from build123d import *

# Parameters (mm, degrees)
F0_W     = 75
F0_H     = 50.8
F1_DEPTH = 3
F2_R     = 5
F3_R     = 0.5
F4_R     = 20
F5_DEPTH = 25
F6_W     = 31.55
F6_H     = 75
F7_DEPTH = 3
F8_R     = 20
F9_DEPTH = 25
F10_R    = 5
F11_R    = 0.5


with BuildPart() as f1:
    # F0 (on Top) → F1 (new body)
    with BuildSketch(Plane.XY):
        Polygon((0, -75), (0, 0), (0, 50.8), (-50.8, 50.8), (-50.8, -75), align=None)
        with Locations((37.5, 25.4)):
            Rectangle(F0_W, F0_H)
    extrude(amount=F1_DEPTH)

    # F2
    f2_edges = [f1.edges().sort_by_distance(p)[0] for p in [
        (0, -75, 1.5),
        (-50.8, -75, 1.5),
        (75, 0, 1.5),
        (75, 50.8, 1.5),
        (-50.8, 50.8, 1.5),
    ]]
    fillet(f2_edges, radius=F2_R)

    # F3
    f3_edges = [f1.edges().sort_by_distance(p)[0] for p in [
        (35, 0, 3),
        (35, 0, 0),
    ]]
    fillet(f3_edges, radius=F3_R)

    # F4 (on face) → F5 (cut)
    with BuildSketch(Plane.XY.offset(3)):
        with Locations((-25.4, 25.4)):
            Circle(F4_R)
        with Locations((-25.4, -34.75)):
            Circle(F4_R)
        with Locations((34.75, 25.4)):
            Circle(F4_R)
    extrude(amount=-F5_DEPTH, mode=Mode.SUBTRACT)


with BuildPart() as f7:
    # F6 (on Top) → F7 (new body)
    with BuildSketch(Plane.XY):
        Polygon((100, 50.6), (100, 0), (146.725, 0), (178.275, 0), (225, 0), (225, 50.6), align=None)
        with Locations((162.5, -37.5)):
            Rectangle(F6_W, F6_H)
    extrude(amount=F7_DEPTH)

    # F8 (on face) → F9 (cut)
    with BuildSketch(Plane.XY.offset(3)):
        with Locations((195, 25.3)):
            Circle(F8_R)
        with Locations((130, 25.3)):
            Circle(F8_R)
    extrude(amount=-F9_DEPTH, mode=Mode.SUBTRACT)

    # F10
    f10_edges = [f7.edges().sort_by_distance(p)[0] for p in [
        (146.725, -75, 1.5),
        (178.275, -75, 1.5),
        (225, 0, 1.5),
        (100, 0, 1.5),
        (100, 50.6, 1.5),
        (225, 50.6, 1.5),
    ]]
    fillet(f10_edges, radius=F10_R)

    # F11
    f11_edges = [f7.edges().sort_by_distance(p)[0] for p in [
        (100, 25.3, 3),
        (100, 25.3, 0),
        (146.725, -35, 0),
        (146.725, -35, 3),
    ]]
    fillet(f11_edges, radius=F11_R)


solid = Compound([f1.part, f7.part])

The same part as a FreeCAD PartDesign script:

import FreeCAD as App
import Part
import Sketcher

V = App.Vector
Q = App.Units.Quantity


def edges_at(feature, points):
    """Names of the edges that pass closest to the given points."""
    edges = feature.Shape.Edges
    near = lambda p: min(range(len(edges)), key=lambda i: edges[i].distToShape(Part.Vertex(*p))[0])
    return sorted({f"Edge{near(p) + 1}" for p in points})


def add_polygon(sketch, points):
    """Adds a closed chain of lines whose ends are joined by coincident constraints."""
    first, n = sketch.GeometryCount, len(points)
    for a, b in zip(points, points[1:] + points[:1]):
        sketch.addGeometry(Part.LineSegment(App.Vector(*a, 0), App.Vector(*b, 0)), False)
    for i in range(n):
        sketch.addConstraint(Sketcher.Constraint("Coincident", first + i, 2, first + (i + 1) % n, 1))

doc = App.newDocument("Part")
body = doc.addObject("PartDesign::Body", "Body")

# Sketch on XY plane
sketch1 = body.newObject("Sketcher::SketchObject", "Sketch")
sketch1.AttachmentSupport = (doc.getObject("XY_Plane"), [""])
sketch1.MapMode = "FlatFace"
add_polygon(sketch1, [(0, -75), (0, 0), (75, 0), (75, 51), (-51, 51), (-51, -75)])  # lines 0-5
sketch1.addConstraint([
    Sketcher.Constraint("Vertical", 0),
    Sketcher.Constraint("Horizontal", 1),
    Sketcher.Constraint("Vertical", 2),
    Sketcher.Constraint("Horizontal", 3),
    Sketcher.Constraint("Vertical", 4),
    Sketcher.Constraint("Horizontal", 5),
    Sketcher.Constraint("Coincident", 0, 2, -1, 1),
    Sketcher.Constraint("Equal", 1, 0),
    Sketcher.Constraint("Equal", 5, 2),
    Sketcher.Constraint("DistanceX", 1, 1, 1, 2, Q("75 mm")),
    Sketcher.Constraint("DistanceX", 3, 2, 3, 1, Q("125.8 mm")),
])
pad1 = body.newObject("PartDesign::Pad", "Pad")
pad1.Profile = sketch1
pad1.Length = 3
doc.recompute()

fillet = body.newObject("PartDesign::Fillet", "Fillet")
fillet.Base = (pad1, edges_at(pad1, [
    (0, -75, 1.5),
    (-50.8, -75, 1.5),
    (75, 0, 1.5),
    (75, 50.8, 1.5),
    (-50.8, 50.8, 1.5),
]))
fillet.Radius = 5
doc.recompute()

fillet2 = body.newObject("PartDesign::Fillet", "Fillet001")
fillet2.Base = (fillet, edges_at(fillet, [(35, 0, 3), (35, 0, 0)]))
fillet2.Radius = 0.5

# Sketch on XY plane
sketch2 = body.newObject("Sketcher::SketchObject", "Sketch001")
sketch2.AttachmentSupport = (doc.getObject("XY_Plane"), [""])
sketch2.MapMode = "FlatFace"
sketch2.AttachmentOffset = App.Placement(V(0, 0, 3), App.Rotation())
sketch2.addGeometry([
    Part.Circle(V(-25, 25, 0), V(0, 0, 1), 20),
    Part.Circle(V(-25, -35, 0), V(0, 0, 1), 20),
    Part.Circle(V(35, 25, 0), V(0, 0, 1), 20),
], False)
sketch2.addConstraint([
    Sketcher.Constraint("Equal", 0, 1),
    Sketcher.Constraint("Equal", 1, 2),
    Sketcher.Constraint("Horizontal", 0, 3, 2, 3),
    Sketcher.Constraint("Vertical", 0, 3, 1, 3),
    Sketcher.Constraint("Diameter", 0, Q("40 mm")),
    Sketcher.Constraint("DistanceX", 0, 3, -1, 1, Q("25.4 mm")),
    Sketcher.Constraint("DistanceY", -1, 1, 0, 3, Q("25.4 mm")),
    Sketcher.Constraint("DistanceY", 1, 3, -1, 1, Q("34.75 mm")),
    Sketcher.Constraint("DistanceX", -1, 1, 2, 3, Q("34.75 mm")),
])
pocket1 = body.newObject("PartDesign::Pocket", "Pocket")
pocket1.Profile = sketch2
pocket1.Length = 25
body2 = doc.addObject("PartDesign::Body", "Body001")

# Sketch on XY plane
sketch3 = body2.newObject("Sketcher::SketchObject", "Sketch002")
sketch3.AttachmentSupport = (doc.getObject("XY_Plane001"), [""])
sketch3.MapMode = "FlatFace"
add_polygon(sketch3, [(100, 51), (100, 0), (147, 0), (147, -75), (178, -75), (178, 0), (225, 0), (225, 51)])  # lines 0-7
sketch3.addConstraint([
    Sketcher.Constraint("Vertical", 0),
    Sketcher.Constraint("Horizontal", 1),
    Sketcher.Constraint("Vertical", 2),
    Sketcher.Constraint("Horizontal", 3),
    Sketcher.Constraint("Vertical", 4),
    Sketcher.Constraint("Horizontal", 5),
    Sketcher.Constraint("Vertical", 6),
    Sketcher.Constraint("Horizontal", 7),
    Sketcher.Constraint("PointOnObject", 0, 2, -1),
    Sketcher.Constraint("PointOnObject", 4, 2, -1),
    Sketcher.Constraint("Equal", 1, 5),
    Sketcher.Constraint("DistanceX", 7, 2, 7, 1, Q("125 mm")),
    Sketcher.Constraint("DistanceY", 2, 2, 2, 1, Q("75 mm")),
    Sketcher.Constraint("DistanceY", 0, 2, 0, 1, Q("50.6 mm")),
    Sketcher.Constraint("DistanceX", -1, 1, 0, 2, Q("100 mm")),
    Sketcher.Constraint("DistanceX", 3, 1, 3, 2, Q("31.55 mm")),
])
pad2 = body2.newObject("PartDesign::Pad", "Pad001")
pad2.Profile = sketch3
pad2.Length = 3

# Sketch on XY plane
sketch4 = body2.newObject("Sketcher::SketchObject", "Sketch003")
sketch4.AttachmentSupport = (doc.getObject("XY_Plane001"), [""])
sketch4.MapMode = "FlatFace"
sketch4.AttachmentOffset = App.Placement(V(0, 0, 3), App.Rotation())
sketch4.addGeometry([
    Part.Circle(V(195, 25, 0), V(0, 0, 1), 20),
    Part.Circle(V(130, 25, 0), V(0, 0, 1), 20),
], False)
sketch4.addConstraint([
    Sketcher.Constraint("Equal", 0, 1),
    Sketcher.Constraint("Horizontal", 0, 3, 1, 3),
    Sketcher.Constraint("Diameter", 0, Q("40 mm")),
    Sketcher.Constraint("DistanceX", -1, 1, 0, 3, Q("195 mm")),
    Sketcher.Constraint("DistanceX", -1, 1, 1, 3, Q("130 mm")),
    Sketcher.Constraint("DistanceY", -1, 1, 0, 3, Q("25.3 mm")),
])
pocket2 = body2.newObject("PartDesign::Pocket", "Pocket001")
pocket2.Profile = sketch4
pocket2.Length = 25
doc.recompute()

fillet3 = body2.newObject("PartDesign::Fillet", "Fillet002")
fillet3.Base = (pocket2, edges_at(pocket2, [
    (146.725, -75, 1.5),
    (178.275, -75, 1.5),
    (225, 0, 1.5),
    (100, 0, 1.5),
    (100, 50.6, 1.5),
    (225, 50.6, 1.5),
]))
fillet3.Radius = 5
doc.recompute()

fillet4 = body2.newObject("PartDesign::Fillet", "Fillet003")
fillet4.Base = (fillet3, edges_at(fillet3, [
    (100, 25.3, 3),
    (100, 25.3, 0),
    (146.725, -35, 0),
    (146.725, -35, 3),
]))
fillet4.Radius = 0.5

doc.recompute()
